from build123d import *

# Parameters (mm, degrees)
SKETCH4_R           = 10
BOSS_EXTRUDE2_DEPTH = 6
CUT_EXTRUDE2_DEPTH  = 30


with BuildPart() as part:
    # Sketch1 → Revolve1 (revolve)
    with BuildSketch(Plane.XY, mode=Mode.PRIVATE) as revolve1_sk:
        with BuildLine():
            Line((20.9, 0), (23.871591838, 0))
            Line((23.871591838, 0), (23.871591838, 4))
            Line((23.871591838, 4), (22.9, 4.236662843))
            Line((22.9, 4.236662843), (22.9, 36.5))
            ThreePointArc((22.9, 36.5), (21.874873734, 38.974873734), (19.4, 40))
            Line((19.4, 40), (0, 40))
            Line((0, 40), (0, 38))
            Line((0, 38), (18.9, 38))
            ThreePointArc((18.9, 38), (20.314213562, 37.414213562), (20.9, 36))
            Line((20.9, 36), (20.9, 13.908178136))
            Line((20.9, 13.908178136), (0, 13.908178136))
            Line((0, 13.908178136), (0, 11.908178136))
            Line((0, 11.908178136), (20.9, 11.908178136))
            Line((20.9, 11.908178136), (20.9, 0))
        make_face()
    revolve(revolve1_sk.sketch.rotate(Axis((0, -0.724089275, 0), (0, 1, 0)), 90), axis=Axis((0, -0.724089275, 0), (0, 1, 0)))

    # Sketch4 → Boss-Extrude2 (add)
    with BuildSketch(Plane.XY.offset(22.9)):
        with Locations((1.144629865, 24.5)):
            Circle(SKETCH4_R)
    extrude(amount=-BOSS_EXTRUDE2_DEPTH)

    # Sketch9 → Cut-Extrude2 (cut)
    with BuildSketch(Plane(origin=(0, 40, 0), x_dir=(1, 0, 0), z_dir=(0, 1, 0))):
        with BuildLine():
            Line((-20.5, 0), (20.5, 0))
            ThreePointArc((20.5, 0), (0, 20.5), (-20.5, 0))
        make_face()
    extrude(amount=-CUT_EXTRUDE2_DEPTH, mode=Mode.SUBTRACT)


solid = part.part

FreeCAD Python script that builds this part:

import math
import FreeCAD as App
import Part
import Sketcher
from FreeCAD import Vector

doc = App.newDocument("Part")
body = doc.addObject("PartDesign::Body", "Body")

# Sketch on XY plane
sketch1 = body.newObject("Sketcher::SketchObject", "Sketch")
sketch1.AttachmentSupport = (doc.getObject("XY_Plane"), [""])
sketch1.MapMode = "FlatFace"
sketch1.addGeometry([
    Part.LineSegment(Vector(20.9, 0, 0), Vector(23.9, 0, 0)),  # 0
    Part.LineSegment(Vector(23.9, 0, 0), Vector(23.9, 4, 0)),  # 1
    Part.LineSegment(Vector(23.9, 4, 0), Vector(22.9, 4.2, 0)),  # 2
    Part.LineSegment(Vector(22.9, 4.2, 0), Vector(22.9, 36.5, 0)),  # 3
    Part.ArcOfCircle(Part.Circle(Vector(19.4, 36.5, 0), Vector(0, 0, 1), 3.5), math.radians(0), math.radians(90)),  # 4
    Part.LineSegment(Vector(19.4, 40, 0), Vector(0, 40, 0)),  # 5
    Part.LineSegment(Vector(0, 40, 0), Vector(0, 38, 0)),  # 6
    Part.LineSegment(Vector(0, 38, 0), Vector(18.9, 38, 0)),  # 7
    Part.ArcOfCircle(Part.Circle(Vector(18.9, 36, 0), Vector(0, 0, 1), 2), math.radians(0), math.radians(90)),  # 8
    Part.LineSegment(Vector(20.9, 36, 0), Vector(20.9, 13.9, 0)),  # 9
    Part.LineSegment(Vector(20.9, 13.9, 0), Vector(0, 13.9, 0)),  # 10
    Part.LineSegment(Vector(0, 13.9, 0), Vector(0, 11.9, 0)),  # 11
    Part.LineSegment(Vector(0, 11.9, 0), Vector(20.9, 11.9, 0)),  # 12
    Part.LineSegment(Vector(20.9, 11.9, 0), Vector(20.9, 0, 0)),  # 13
], False)
sketch1.addConstraint([
    Sketcher.Constraint("Coincident", 0, 2, 1, 1),
    Sketcher.Constraint("Coincident", 1, 2, 2, 1),
    Sketcher.Constraint("Coincident", 2, 2, 3, 1),
    Sketcher.Constraint("Tangent", 3, 2, 4, 1),
    Sketcher.Constraint("Tangent", 4, 2, 5, 1),
    Sketcher.Constraint("Coincident", 5, 2, 6, 1),
    Sketcher.Constraint("Coincident", 6, 2, 7, 1),
    Sketcher.Constraint("Tangent", 7, 2, 8, 2),
    Sketcher.Constraint("Tangent", 8, 1, 9, 1),
    Sketcher.Constraint("Coincident", 9, 2, 10, 1),
    Sketcher.Constraint("Coincident", 10, 2, 11, 1),
    Sketcher.Constraint("Coincident", 11, 2, 12, 1),
    Sketcher.Constraint("Coincident", 12, 2, 13, 1),
    Sketcher.Constraint("Coincident", 13, 2, 0, 1),
    Sketcher.Constraint("Horizontal", 0),
    Sketcher.Constraint("Vertical", 1),
    Sketcher.Constraint("Vertical", 3),
    Sketcher.Constraint("Horizontal", 5),
    Sketcher.Constraint("Vertical", 6),
    Sketcher.Constraint("Horizontal", 7),
    Sketcher.Constraint("Vertical", 9),
    Sketcher.Constraint("Horizontal", 10),
    Sketcher.Constraint("Vertical", 11),
    Sketcher.Constraint("Horizontal", 12),
    Sketcher.Constraint("Vertical", 13),
    Sketcher.Constraint("PointOnObject", 0, 2, -1),
    Sketcher.Constraint("PointOnObject", 5, 2, -2),
    Sketcher.Constraint("PointOnObject", 10, 2, -2),
    Sketcher.Constraint("Vertical", 9, 2, 12, 2),
    Sketcher.Constraint("Equal", 6, 11),
    Sketcher.Constraint("Radius", 8, 2.0),
    Sketcher.Constraint("Radius", 4, 3.5),
    Sketcher.Constraint("DistanceY", 1, 1, 1, 2, 4.0),
    Sketcher.Constraint("DistanceY", 6, 2, 6, 1, 2.0),
    Sketcher.Constraint("Distance", 2, 1.0),
    Sketcher.Constraint("DistanceX", 5, 2, 5, 1, 19.4),
    Sketcher.Constraint("DistanceX", 7, 1, 7, 2, 18.9),
    Sketcher.Constraint("DistanceY", -1, 1, 8, 3, 36.0),
    Sketcher.Constraint("DistanceX", 0, 1, 0, 2, 2.971592),
    Sketcher.Constraint("DistanceY", 9, 2, 9, 1, 22.091822),
])
revolution = body.newObject("PartDesign::Revolution", "Revolution")
revolution.Profile = sketch1
revolution.ReferenceAxis = (sketch1, ["V_Axis"])
revolution.Angle = 360

# Sketch on XY plane
sketch2 = body.newObject("Sketcher::SketchObject", "Sketch001")
sketch2.AttachmentSupport = (doc.getObject("XY_Plane"), [""])
sketch2.MapMode = "FlatFace"
sketch2.AttachmentOffset = App.Placement(Vector(0, 0, 22.9), App.Rotation())
sketch2.addGeometry(Part.Circle(Vector(1, 24, 0), Vector(0, 0, 1), 10), False)
sketch2.addConstraint([
    Sketcher.Constraint("Diameter", 0, 20.0),
    Sketcher.Constraint("DistanceY", -1, 1, 0, 3, 24.5),
    Sketcher.Constraint("DistanceX", -1, 1, 0, 3, 1.14463),
])
pad1 = body.newObject("PartDesign::Pad", "Pad")
pad1.Profile = sketch2
pad1.Length = 6
pad1.Reversed = True

# Sketch on XZ plane
sketch3 = body.newObject("Sketcher::SketchObject", "Sketch002")
sketch3.AttachmentSupport = (doc.getObject("XZ_Plane"), [""])
sketch3.MapMode = "FlatFace"
sketch3.AttachmentOffset = App.Placement(Vector(0, 0, -40), App.Rotation())
sketch3.addGeometry([
    Part.LineSegment(Vector(-20, 0, 0), Vector(20, 0, 0)),
    Part.ArcOfCircle(Part.Circle(Vector(0, 0, 0), Vector(0, 0, 1), 20), math.radians(180), math.radians(360)),
], False)
sketch3.addConstraint([
    Sketcher.Constraint("Coincident", 0, 1, 1, 1),
    Sketcher.Constraint("Coincident", 1, 2, 0, 2),
    Sketcher.Constraint("Horizontal", 0),
    Sketcher.Constraint("Coincident", 1, 3, -1, 1),
    Sketcher.Constraint("PointOnObject", 0, 1, -1),
    Sketcher.Constraint("Radius", 1, 20.5),
])
pocket1 = body.newObject("PartDesign::Pocket", "Pocket")
pocket1.Profile = sketch3
pocket1.Length = 30
pocket1.Reversed = True

doc.recompute()
